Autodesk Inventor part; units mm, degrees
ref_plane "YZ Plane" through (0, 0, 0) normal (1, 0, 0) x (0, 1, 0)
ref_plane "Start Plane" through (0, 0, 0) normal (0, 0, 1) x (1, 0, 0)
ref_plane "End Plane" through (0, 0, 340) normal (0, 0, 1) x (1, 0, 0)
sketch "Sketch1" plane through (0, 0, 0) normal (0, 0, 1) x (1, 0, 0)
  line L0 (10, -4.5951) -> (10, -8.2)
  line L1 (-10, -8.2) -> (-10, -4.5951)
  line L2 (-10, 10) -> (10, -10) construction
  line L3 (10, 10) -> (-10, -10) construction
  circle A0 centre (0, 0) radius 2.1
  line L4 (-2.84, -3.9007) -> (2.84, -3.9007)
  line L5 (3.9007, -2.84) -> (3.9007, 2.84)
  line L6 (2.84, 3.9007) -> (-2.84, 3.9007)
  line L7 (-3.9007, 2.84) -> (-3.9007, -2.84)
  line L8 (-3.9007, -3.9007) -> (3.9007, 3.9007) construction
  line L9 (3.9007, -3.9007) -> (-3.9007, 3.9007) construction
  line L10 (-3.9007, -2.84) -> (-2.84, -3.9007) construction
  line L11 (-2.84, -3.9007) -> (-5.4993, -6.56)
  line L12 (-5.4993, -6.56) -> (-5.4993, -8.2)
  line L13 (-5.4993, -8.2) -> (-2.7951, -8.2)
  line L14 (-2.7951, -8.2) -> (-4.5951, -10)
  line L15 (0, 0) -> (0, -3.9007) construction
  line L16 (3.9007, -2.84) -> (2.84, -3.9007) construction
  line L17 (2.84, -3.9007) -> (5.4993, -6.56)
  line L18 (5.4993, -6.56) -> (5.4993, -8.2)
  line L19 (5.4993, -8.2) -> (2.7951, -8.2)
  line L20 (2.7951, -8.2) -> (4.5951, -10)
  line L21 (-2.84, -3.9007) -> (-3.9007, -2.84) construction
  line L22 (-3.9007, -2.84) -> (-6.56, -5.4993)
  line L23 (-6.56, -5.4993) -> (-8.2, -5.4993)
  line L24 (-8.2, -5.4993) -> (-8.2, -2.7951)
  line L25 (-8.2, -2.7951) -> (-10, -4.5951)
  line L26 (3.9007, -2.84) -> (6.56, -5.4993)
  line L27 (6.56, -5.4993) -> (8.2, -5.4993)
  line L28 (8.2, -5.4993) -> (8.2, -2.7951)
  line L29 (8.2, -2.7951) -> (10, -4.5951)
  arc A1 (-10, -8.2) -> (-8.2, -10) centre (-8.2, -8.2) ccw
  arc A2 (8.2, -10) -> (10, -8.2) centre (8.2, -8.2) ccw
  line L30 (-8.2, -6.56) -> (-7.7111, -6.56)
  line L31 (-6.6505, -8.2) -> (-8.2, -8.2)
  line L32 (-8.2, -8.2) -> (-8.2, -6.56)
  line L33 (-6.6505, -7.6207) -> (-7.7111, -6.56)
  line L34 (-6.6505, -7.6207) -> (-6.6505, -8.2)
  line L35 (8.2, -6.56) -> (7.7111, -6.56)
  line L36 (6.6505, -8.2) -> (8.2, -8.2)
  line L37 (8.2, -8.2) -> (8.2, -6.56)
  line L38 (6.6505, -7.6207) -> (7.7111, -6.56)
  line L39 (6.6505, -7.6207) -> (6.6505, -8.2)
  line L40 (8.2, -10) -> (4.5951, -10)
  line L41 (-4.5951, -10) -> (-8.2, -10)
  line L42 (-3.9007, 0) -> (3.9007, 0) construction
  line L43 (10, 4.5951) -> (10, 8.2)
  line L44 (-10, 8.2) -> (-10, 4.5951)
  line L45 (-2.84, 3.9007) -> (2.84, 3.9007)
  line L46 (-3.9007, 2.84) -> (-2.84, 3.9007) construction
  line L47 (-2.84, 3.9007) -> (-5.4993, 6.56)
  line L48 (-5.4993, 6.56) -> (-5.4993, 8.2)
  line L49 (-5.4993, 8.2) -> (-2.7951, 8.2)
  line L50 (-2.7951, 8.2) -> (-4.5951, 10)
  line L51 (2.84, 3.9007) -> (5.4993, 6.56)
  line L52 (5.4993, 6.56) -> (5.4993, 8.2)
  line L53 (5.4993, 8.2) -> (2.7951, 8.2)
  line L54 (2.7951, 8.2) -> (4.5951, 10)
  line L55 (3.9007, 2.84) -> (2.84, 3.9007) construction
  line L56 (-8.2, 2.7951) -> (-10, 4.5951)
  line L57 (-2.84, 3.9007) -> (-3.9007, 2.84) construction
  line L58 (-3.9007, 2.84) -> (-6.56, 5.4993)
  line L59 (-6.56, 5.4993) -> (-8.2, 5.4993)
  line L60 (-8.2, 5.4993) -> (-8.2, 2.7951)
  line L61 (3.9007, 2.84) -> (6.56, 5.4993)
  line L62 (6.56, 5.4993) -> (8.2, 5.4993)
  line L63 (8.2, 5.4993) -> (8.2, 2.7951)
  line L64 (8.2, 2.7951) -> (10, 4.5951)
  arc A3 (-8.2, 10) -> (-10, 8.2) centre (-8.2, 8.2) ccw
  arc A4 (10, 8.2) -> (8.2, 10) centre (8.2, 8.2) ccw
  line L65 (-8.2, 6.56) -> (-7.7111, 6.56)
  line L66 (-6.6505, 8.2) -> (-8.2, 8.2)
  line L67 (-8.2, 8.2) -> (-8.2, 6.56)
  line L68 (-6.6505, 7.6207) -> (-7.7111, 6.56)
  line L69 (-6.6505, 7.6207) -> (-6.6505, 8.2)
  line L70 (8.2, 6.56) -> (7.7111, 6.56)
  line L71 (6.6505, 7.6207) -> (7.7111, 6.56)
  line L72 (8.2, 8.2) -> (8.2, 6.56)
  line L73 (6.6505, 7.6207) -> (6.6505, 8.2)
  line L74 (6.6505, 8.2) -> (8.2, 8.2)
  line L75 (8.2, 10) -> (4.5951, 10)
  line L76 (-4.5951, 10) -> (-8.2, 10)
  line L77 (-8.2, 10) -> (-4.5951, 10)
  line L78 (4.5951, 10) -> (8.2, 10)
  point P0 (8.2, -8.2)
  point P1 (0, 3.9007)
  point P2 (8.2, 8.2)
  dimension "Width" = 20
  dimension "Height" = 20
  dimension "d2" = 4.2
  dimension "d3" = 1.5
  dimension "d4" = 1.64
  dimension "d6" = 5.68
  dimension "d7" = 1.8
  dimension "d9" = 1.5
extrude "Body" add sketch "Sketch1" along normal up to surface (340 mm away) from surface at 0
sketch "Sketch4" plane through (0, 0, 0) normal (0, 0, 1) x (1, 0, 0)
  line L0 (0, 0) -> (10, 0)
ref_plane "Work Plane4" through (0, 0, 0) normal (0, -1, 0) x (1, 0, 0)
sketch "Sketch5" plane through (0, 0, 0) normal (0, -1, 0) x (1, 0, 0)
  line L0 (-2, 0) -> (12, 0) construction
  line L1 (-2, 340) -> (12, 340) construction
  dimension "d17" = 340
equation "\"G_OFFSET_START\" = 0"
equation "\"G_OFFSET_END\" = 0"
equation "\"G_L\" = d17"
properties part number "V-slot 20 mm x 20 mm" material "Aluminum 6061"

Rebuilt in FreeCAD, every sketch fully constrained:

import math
import FreeCAD as App
import Part
import Sketcher

V = App.Vector

doc = App.newDocument("Part")
body = doc.addObject("PartDesign::Body", "Body")

sketch1 = body.newObject("Sketcher::SketchObject", "Sketch")
sketch1.AttachmentSupport = (doc.getObject("XY_Plane"), [""])
sketch1.MapMode = "FlatFace"
sketch1.addGeometry([
    Part.LineSegment(V(10, -8.2, 0), V(10, -4.6, 0)),
    Part.LineSegment(V(10, -4.6, 0), V(8.2, -2.8, 0)),
    Part.LineSegment(V(8.2, -2.8, 0), V(8.2, -5.5, 0)),
    Part.LineSegment(V(8.2, -5.5, 0), V(6.56, -5.5, 0)),
    Part.LineSegment(V(6.56, -5.5, 0), V(3.9, -2.84, 0)),
    Part.LineSegment(V(3.9, -2.84, 0), V(3.9, 2.84, 0)),
    Part.LineSegment(V(3.9, 2.84, 0), V(6.56, 5.5, 0)),
    Part.LineSegment(V(6.56, 5.5, 0), V(8.2, 5.5, 0)),
    Part.LineSegment(V(8.2, 5.5, 0), V(8.2, 2.8, 0)),
    Part.LineSegment(V(8.2, 2.8, 0), V(10, 4.6, 0)),
    Part.LineSegment(V(10, 4.6, 0), V(10, 8.2, 0)),
    Part.ArcOfCircle(Part.Circle(V(8.2, 8.2, 0), V(0, 0, 1), 1.8), math.radians(0), math.radians(90)),
    Part.LineSegment(V(8.2, 10, 0), V(4.6, 10, 0)),
    Part.LineSegment(V(4.6, 10, 0), V(2.8, 8.2, 0)),
    Part.LineSegment(V(2.8, 8.2, 0), V(5.5, 8.2, 0)),
    Part.LineSegment(V(5.5, 8.2, 0), V(5.5, 6.56, 0)),
    Part.LineSegment(V(5.5, 6.56, 0), V(2.84, 3.9, 0)),
    Part.LineSegment(V(2.84, 3.9, 0), V(-2.84, 3.9, 0)),
    Part.LineSegment(V(-2.84, 3.9, 0), V(-5.5, 6.56, 0)),
    Part.LineSegment(V(-5.5, 6.56, 0), V(-5.5, 8.2, 0)),
    Part.LineSegment(V(-5.5, 8.2, 0), V(-2.8, 8.2, 0)),
    Part.LineSegment(V(-2.8, 8.2, 0), V(-4.6, 10, 0)),
    Part.LineSegment(V(-4.6, 10, 0), V(-8.2, 10, 0)),
    Part.ArcOfCircle(Part.Circle(V(-8.2, 8.2, 0), V(0, 0, 1), 1.8), math.radians(90), math.radians(180)),
    Part.LineSegment(V(-10, 8.2, 0), V(-10, 4.6, 0)),
    Part.LineSegment(V(-10, 4.6, 0), V(-8.2, 2.8, 0)),
    Part.LineSegment(V(-8.2, 2.8, 0), V(-8.2, 5.5, 0)),
    Part.LineSegment(V(-8.2, 5.5, 0), V(-6.56, 5.5, 0)),
    Part.LineSegment(V(-6.56, 5.5, 0), V(-3.9, 2.84, 0)),
    Part.LineSegment(V(-3.9, 2.84, 0), V(-3.9, -2.84, 0)),
    Part.LineSegment(V(-3.9, -2.84, 0), V(-6.56, -5.5, 0)),
    Part.LineSegment(V(-6.56, -5.5, 0), V(-8.2, -5.5, 0)),
    Part.LineSegment(V(-8.2, -5.5, 0), V(-8.2, -2.8, 0)),
    Part.LineSegment(V(-8.2, -2.8, 0), V(-10, -4.6, 0)),
    Part.LineSegment(V(-10, -4.6, 0), V(-10, -8.2, 0)),
    Part.ArcOfCircle(Part.Circle(V(-8.2, -8.2, 0), V(0, 0, 1), 1.8), math.radians(180), math.radians(270)),
    Part.LineSegment(V(-8.2, -10, 0), V(-4.6, -10, 0)),
    Part.LineSegment(V(-4.6, -10, 0), V(-2.8, -8.2, 0)),
    Part.LineSegment(V(-2.8, -8.2, 0), V(-5.5, -8.2, 0)),
    Part.LineSegment(V(-5.5, -8.2, 0), V(-5.5, -6.56, 0)),
    Part.LineSegment(V(-5.5, -6.56, 0), V(-2.84, -3.9, 0)),
    Part.LineSegment(V(-2.84, -3.9, 0), V(2.84, -3.9, 0)),
    Part.LineSegment(V(2.84, -3.9, 0), V(5.5, -6.56, 0)),
    Part.LineSegment(V(5.5, -6.56, 0), V(5.5, -8.2, 0)),
    Part.LineSegment(V(5.5, -8.2, 0), V(2.8, -8.2, 0)),
    Part.LineSegment(V(2.8, -8.2, 0), V(4.6, -10, 0)),
    Part.LineSegment(V(4.6, -10, 0), V(8.2, -10, 0)),
    Part.ArcOfCircle(Part.Circle(V(8.2, -8.2, 0), V(0, 0, 1), 1.8), math.radians(-90), math.radians(0)),
    Part.LineSegment(V(-8.2, -8.2, 0), V(-8.2, -6.56, 0)),
    Part.LineSegment(V(-8.2, -6.56, 0), V(-7.71, -6.56, 0)),
    Part.LineSegment(V(-7.71, -6.56, 0), V(-6.65, -7.62, 0)),
    Part.LineSegment(V(-6.65, -7.62, 0), V(-6.65, -8.2, 0)),
    Part.LineSegment(V(-6.65, -8.2, 0), V(-8.2, -8.2, 0)),
    Part.LineSegment(V(7.71, -6.56, 0), V(8.2, -6.56, 0)),
    Part.LineSegment(V(8.2, -6.56, 0), V(8.2, -8.2, 0)),
    Part.LineSegment(V(8.2, -8.2, 0), V(6.65, -8.2, 0)),
    Part.LineSegment(V(6.65, -8.2, 0), V(6.65, -7.62, 0)),
    Part.LineSegment(V(6.65, -7.62, 0), V(7.71, -6.56, 0)),
    Part.LineSegment(V(-7.71, 6.56, 0), V(-8.2, 6.56, 0)),
    Part.LineSegment(V(-8.2, 6.56, 0), V(-8.2, 8.2, 0)),
    Part.LineSegment(V(-8.2, 8.2, 0), V(-6.65, 8.2, 0)),
    Part.LineSegment(V(-6.65, 8.2, 0), V(-6.65, 7.62, 0)),
    Part.LineSegment(V(-6.65, 7.62, 0), V(-7.71, 6.56, 0)),
    Part.Circle(V(0, 0, 0), V(0, 0, 1), 2.1),
    Part.LineSegment(V(8.2, 8.2, 0), V(8.2, 6.56, 0)),
    Part.LineSegment(V(8.2, 6.56, 0), V(7.71, 6.56, 0)),
    Part.LineSegment(V(7.71, 6.56, 0), V(6.65, 7.62, 0)),
    Part.LineSegment(V(6.65, 7.62, 0), V(6.65, 8.2, 0)),
    Part.LineSegment(V(6.65, 8.2, 0), V(8.2, 8.2, 0)),
], False)
sketch1.addConstraint([
    Sketcher.Constraint("Coincident", 0, 2, 1, 1),
    Sketcher.Constraint("Coincident", 1, 2, 2, 1),
    Sketcher.Constraint("Coincident", 2, 2, 3, 1),
    Sketcher.Constraint("Coincident", 3, 2, 4, 1),
    Sketcher.Constraint("Coincident", 4, 2, 5, 1),
    Sketcher.Constraint("Coincident", 5, 2, 6, 1),
    Sketcher.Constraint("Coincident", 6, 2, 7, 1),
    Sketcher.Constraint("Coincident", 7, 2, 8, 1),
    Sketcher.Constraint("Coincident", 8, 2, 9, 1),
    Sketcher.Constraint("Coincident", 9, 2, 10, 1),
    Sketcher.Constraint("Tangent", 10, 2, 11, 1),
    Sketcher.Constraint("Tangent", 11, 2, 12, 1),
    Sketcher.Constraint("Coincident", 12, 2, 13, 1),
    Sketcher.Constraint("Coincident", 13, 2, 14, 1),
    Sketcher.Constraint("Coincident", 14, 2, 15, 1),
    Sketcher.Constraint("Coincident", 15, 2, 16, 1),
    Sketcher.Constraint("Coincident", 16, 2, 17, 1),
    Sketcher.Constraint("Coincident", 17, 2, 18, 1),
    Sketcher.Constraint("Coincident", 18, 2, 19, 1),
    Sketcher.Constraint("Coincident", 19, 2, 20, 1),
    Sketcher.Constraint("Coincident", 20, 2, 21, 1),
    Sketcher.Constraint("Coincident", 21, 2, 22, 1),
    Sketcher.Constraint("Tangent", 22, 2, 23, 1),
    Sketcher.Constraint("Tangent", 23, 2, 24, 1),
    Sketcher.Constraint("Coincident", 24, 2, 25, 1),
    Sketcher.Constraint("Coincident", 25, 2, 26, 1),
    Sketcher.Constraint("Coincident", 26, 2, 27, 1),
    Sketcher.Constraint("Coincident", 27, 2, 28, 1),
    Sketcher.Constraint("Coincident", 28, 2, 29, 1),
    Sketcher.Constraint("Coincident", 29, 2, 30, 1),
    Sketcher.Constraint("Coincident", 30, 2, 31, 1),
    Sketcher.Constraint("Coincident", 31, 2, 32, 1),
    Sketcher.Constraint("Coincident", 32, 2, 33, 1),
    Sketcher.Constraint("Coincident", 33, 2, 34, 1),
    Sketcher.Constraint("Tangent", 34, 2, 35, 1),
    Sketcher.Constraint("Tangent", 35, 2, 36, 1),
    Sketcher.Constraint("Coincident", 36, 2, 37, 1),
    Sketcher.Constraint("Coincident", 37, 2, 38, 1),
    Sketcher.Constraint("Coincident", 38, 2, 39, 1),
    Sketcher.Constraint("Coincident", 39, 2, 40, 1),
    Sketcher.Constraint("Coincident", 40, 2, 41, 1),
    Sketcher.Constraint("Coincident", 41, 2, 42, 1),
    Sketcher.Constraint("Coincident", 42, 2, 43, 1),
    Sketcher.Constraint("Coincident", 43, 2, 44, 1),
    Sketcher.Constraint("Coincident", 44, 2, 45, 1),
    Sketcher.Constraint("Coincident", 45, 2, 46, 1),
    Sketcher.Constraint("Tangent", 46, 2, 47, 1),
    Sketcher.Constraint("Tangent", 47, 2, 0, 1),
    Sketcher.Constraint("Coincident", 48, 2, 49, 1),
    Sketcher.Constraint("Coincident", 49, 2, 50, 1),
    Sketcher.Constraint("Coincident", 50, 2, 51, 1),
    Sketcher.Constraint("Coincident", 51, 2, 52, 1),
    Sketcher.Constraint("Coincident", 52, 2, 48, 1),
    Sketcher.Constraint("Coincident", 53, 2, 54, 1),
    Sketcher.Constraint("Coincident", 54, 2, 55, 1),
    Sketcher.Constraint("Coincident", 55, 2, 56, 1),
    Sketcher.Constraint("Coincident", 56, 2, 57, 1),
    Sketcher.Constraint("Coincident", 57, 2, 53, 1),
    Sketcher.Constraint("Coincident", 58, 2, 59, 1),
    Sketcher.Constraint("Coincident", 59, 2, 60, 1),
    Sketcher.Constraint("Coincident", 60, 2, 61, 1),
    Sketcher.Constraint("Coincident", 61, 2, 62, 1),
    Sketcher.Constraint("Coincident", 62, 2, 58, 1),
    Sketcher.Constraint("Coincident", 64, 2, 65, 1),
    Sketcher.Constraint("Coincident", 65, 2, 66, 1),
    Sketcher.Constraint("Coincident", 66, 2, 67, 1),
    Sketcher.Constraint("Coincident", 67, 2, 68, 1),
    Sketcher.Constraint("Coincident", 68, 2, 64, 1),
    Sketcher.Constraint("Vertical", 0),
    Sketcher.Constraint("Vertical", 2),
    Sketcher.Constraint("Horizontal", 3),
    Sketcher.Constraint("Vertical", 5),
    Sketcher.Constraint("Horizontal", 7),
    Sketcher.Constraint("Vertical", 8),
    Sketcher.Constraint("Vertical", 10),
    Sketcher.Constraint("Horizontal", 12),
    Sketcher.Constraint("Horizontal", 14),
    Sketcher.Constraint("Vertical", 15),
    Sketcher.Constraint("Horizontal", 17),
    Sketcher.Constraint("Vertical", 19),
    Sketcher.Constraint("Horizontal", 20),
    Sketcher.Constraint("Horizontal", 22),
    Sketcher.Constraint("Vertical", 24),
    Sketcher.Constraint("Vertical", 26),
    Sketcher.Constraint("Horizontal", 27),
    Sketcher.Constraint("Vertical", 29),
    Sketcher.Constraint("Horizontal", 31),
    Sketcher.Constraint("Vertical", 32),
    Sketcher.Constraint("Vertical", 34),
    Sketcher.Constraint("Horizontal", 36),
    Sketcher.Constraint("Horizontal", 38),
    Sketcher.Constraint("Vertical", 39),
    Sketcher.Constraint("Horizontal", 41),
    Sketcher.Constraint("Vertical", 43),
    Sketcher.Constraint("Horizontal", 44),
    Sketcher.Constraint("Horizontal", 46),
    Sketcher.Constraint("Vertical", 48),
    Sketcher.Constraint("Horizontal", 49),
    Sketcher.Constraint("Vertical", 51),
    Sketcher.Constraint("Horizontal", 52),
    Sketcher.Constraint("Horizontal", 53),
    Sketcher.Constraint("Vertical", 54),
    Sketcher.Constraint("Horizontal", 55),
    Sketcher.Constraint("Vertical", 56),
    Sketcher.Constraint("Horizontal", 58),
    Sketcher.Constraint("Vertical", 59),
    Sketcher.Constraint("Horizontal", 60),
    Sketcher.Constraint("Vertical", 61),
    Sketcher.Constraint("Vertical", 64),
    Sketcher.Constraint("Horizontal", 65),
    Sketcher.Constraint("Vertical", 67),
    Sketcher.Constraint("Horizontal", 68),
    Sketcher.Constraint("Coincident", 63, 3, -1, 1),
    Sketcher.Constraint("Coincident", 52, 2, 35, 3),
    Sketcher.Constraint("Coincident", 54, 2, 47, 3),
    Sketcher.Constraint("Coincident", 59, 2, 23, 3),
    Sketcher.Constraint("Coincident", 68, 2, 11, 3),
    Sketcher.Constraint("Equal", 11, 23),
    Sketcher.Constraint("Equal", 23, 35),
    Sketcher.Constraint("Equal", 35, 47),
    Sketcher.Constraint("Symmetric", 11, 3, 35, 3, -1, 1),
    Sketcher.Constraint("Symmetric", 23, 3, 47, 3, -1, 1),
    Sketcher.Constraint("Symmetric", 1, 2, 25, 2, -1, 1),
    Sketcher.Constraint("Symmetric", 3, 2, 27, 2, -1, 1),
    Sketcher.Constraint("Symmetric", 4, 2, 28, 2, -1, 1),
    Sketcher.Constraint("Symmetric", 6, 2, 30, 2, -1, 1),
    Sketcher.Constraint("Symmetric", 8, 2, 32, 2, -1, 1),
    Sketcher.Constraint("Symmetric", 13, 2, 37, 2, -1, 1),
    Sketcher.Constraint("Symmetric", 15, 2, 39, 2, -1, 1),
    Sketcher.Constraint("Symmetric", 16, 2, 40, 2, -1, 1),
    Sketcher.Constraint("Symmetric", 18, 2, 42, 2, -1, 1),
    Sketcher.Constraint("Symmetric", 20, 2, 44, 2, -1, 1),
    Sketcher.Constraint("Symmetric", 56, 2, 61, 2, -1, 1),
    Sketcher.Constraint("Symmetric", 57, 2, 62, 2, -1, 1),
    Sketcher.Constraint("Symmetric", 49, 2, 65, 2, -1, 1),
    Sketcher.Constraint("Symmetric", 50, 2, 66, 2, -1, 1),
    Sketcher.Constraint("Symmetric", 11, 3, 23, 3, -2),
    Sketcher.Constraint("Symmetric", 15, 2, 18, 2, -2),
    Sketcher.Constraint("Symmetric", 13, 2, 20, 2, -2),
    Sketcher.Constraint("Symmetric", 8, 2, 25, 2, -2),
    Sketcher.Constraint("Symmetric", 6, 2, 27, 2, -2),
    Sketcher.Constraint("Symmetric", 50, 2, 56, 2, -2),
    Sketcher.Constraint("Symmetric", 49, 2, 57, 2, -2),
    Sketcher.Constraint("Parallel", 1, 4),
    Sketcher.Constraint("Perpendicular", 4, 6),
    Sketcher.Constraint("Parallel", 6, 9),
    Sketcher.Constraint("Parallel", 9, 13),
    Sketcher.Constraint("Parallel", 13, 16),
    Sketcher.Constraint("Perpendicular", 16, 18),
    Sketcher.Constraint("Parallel", 18, 21),
    Sketcher.Constraint("Parallel", 21, 25),
    Sketcher.Constraint("Perpendicular", 28, 30),
    Sketcher.Constraint("Parallel", 30, 33),
    Sketcher.Constraint("Parallel", 33, 37),
    Sketcher.Constraint("Perpendicular", 40, 42),
    Sketcher.Constraint("Parallel", 42, 45),
    Sketcher.Constraint("Parallel", 45, 50),
    Sketcher.Constraint("Perpendicular", 50, 57),
    Sketcher.Constraint("Horizontal", 10, 2, 13, 2),
    Sketcher.Constraint("Horizontal", 42, 2, 48, 2),
    Sketcher.Constraint("Vertical", 47, 3, 1, 2),
    Sketcher.Constraint("Equal", 46, 0),
    Sketcher.Constraint("Equal", 44, 2),
    Sketcher.Constraint("Equal", 41, 5),
    Sketcher.Constraint("Equal", 31, 15),
    Sketcher.Constraint("Equal", 6, 16),
    Sketcher.Constraint("Diameter", 63, 4.2),
    Sketcher.Constraint("Radius", 11, 1.8),
    Sketcher.Constraint("Distance", 50, 1.5),
    Sketcher.Constraint("DistanceX", 3, 2, 3, 1, 1.64),
    Sketcher.Constraint("DistanceX", 17, 2, 17, 1, 5.68),
    Sketcher.Constraint("DistanceX", -1, 1, 0, 2, 10.0),
    Sketcher.Constraint("DistanceX", 12, 2, 12, 1, 3.605),
    Sketcher.Constraint("DistanceX", 49, 1, 49, 2, 0.489),
    Sketcher.Constraint("DistanceX", 14, 1, 14, 2, 2.7042),
])
pad1 = body.newObject("PartDesign::Pad", "Pad")
pad1.Profile = sketch1
pad1.Length = 340

doc.recompute()
